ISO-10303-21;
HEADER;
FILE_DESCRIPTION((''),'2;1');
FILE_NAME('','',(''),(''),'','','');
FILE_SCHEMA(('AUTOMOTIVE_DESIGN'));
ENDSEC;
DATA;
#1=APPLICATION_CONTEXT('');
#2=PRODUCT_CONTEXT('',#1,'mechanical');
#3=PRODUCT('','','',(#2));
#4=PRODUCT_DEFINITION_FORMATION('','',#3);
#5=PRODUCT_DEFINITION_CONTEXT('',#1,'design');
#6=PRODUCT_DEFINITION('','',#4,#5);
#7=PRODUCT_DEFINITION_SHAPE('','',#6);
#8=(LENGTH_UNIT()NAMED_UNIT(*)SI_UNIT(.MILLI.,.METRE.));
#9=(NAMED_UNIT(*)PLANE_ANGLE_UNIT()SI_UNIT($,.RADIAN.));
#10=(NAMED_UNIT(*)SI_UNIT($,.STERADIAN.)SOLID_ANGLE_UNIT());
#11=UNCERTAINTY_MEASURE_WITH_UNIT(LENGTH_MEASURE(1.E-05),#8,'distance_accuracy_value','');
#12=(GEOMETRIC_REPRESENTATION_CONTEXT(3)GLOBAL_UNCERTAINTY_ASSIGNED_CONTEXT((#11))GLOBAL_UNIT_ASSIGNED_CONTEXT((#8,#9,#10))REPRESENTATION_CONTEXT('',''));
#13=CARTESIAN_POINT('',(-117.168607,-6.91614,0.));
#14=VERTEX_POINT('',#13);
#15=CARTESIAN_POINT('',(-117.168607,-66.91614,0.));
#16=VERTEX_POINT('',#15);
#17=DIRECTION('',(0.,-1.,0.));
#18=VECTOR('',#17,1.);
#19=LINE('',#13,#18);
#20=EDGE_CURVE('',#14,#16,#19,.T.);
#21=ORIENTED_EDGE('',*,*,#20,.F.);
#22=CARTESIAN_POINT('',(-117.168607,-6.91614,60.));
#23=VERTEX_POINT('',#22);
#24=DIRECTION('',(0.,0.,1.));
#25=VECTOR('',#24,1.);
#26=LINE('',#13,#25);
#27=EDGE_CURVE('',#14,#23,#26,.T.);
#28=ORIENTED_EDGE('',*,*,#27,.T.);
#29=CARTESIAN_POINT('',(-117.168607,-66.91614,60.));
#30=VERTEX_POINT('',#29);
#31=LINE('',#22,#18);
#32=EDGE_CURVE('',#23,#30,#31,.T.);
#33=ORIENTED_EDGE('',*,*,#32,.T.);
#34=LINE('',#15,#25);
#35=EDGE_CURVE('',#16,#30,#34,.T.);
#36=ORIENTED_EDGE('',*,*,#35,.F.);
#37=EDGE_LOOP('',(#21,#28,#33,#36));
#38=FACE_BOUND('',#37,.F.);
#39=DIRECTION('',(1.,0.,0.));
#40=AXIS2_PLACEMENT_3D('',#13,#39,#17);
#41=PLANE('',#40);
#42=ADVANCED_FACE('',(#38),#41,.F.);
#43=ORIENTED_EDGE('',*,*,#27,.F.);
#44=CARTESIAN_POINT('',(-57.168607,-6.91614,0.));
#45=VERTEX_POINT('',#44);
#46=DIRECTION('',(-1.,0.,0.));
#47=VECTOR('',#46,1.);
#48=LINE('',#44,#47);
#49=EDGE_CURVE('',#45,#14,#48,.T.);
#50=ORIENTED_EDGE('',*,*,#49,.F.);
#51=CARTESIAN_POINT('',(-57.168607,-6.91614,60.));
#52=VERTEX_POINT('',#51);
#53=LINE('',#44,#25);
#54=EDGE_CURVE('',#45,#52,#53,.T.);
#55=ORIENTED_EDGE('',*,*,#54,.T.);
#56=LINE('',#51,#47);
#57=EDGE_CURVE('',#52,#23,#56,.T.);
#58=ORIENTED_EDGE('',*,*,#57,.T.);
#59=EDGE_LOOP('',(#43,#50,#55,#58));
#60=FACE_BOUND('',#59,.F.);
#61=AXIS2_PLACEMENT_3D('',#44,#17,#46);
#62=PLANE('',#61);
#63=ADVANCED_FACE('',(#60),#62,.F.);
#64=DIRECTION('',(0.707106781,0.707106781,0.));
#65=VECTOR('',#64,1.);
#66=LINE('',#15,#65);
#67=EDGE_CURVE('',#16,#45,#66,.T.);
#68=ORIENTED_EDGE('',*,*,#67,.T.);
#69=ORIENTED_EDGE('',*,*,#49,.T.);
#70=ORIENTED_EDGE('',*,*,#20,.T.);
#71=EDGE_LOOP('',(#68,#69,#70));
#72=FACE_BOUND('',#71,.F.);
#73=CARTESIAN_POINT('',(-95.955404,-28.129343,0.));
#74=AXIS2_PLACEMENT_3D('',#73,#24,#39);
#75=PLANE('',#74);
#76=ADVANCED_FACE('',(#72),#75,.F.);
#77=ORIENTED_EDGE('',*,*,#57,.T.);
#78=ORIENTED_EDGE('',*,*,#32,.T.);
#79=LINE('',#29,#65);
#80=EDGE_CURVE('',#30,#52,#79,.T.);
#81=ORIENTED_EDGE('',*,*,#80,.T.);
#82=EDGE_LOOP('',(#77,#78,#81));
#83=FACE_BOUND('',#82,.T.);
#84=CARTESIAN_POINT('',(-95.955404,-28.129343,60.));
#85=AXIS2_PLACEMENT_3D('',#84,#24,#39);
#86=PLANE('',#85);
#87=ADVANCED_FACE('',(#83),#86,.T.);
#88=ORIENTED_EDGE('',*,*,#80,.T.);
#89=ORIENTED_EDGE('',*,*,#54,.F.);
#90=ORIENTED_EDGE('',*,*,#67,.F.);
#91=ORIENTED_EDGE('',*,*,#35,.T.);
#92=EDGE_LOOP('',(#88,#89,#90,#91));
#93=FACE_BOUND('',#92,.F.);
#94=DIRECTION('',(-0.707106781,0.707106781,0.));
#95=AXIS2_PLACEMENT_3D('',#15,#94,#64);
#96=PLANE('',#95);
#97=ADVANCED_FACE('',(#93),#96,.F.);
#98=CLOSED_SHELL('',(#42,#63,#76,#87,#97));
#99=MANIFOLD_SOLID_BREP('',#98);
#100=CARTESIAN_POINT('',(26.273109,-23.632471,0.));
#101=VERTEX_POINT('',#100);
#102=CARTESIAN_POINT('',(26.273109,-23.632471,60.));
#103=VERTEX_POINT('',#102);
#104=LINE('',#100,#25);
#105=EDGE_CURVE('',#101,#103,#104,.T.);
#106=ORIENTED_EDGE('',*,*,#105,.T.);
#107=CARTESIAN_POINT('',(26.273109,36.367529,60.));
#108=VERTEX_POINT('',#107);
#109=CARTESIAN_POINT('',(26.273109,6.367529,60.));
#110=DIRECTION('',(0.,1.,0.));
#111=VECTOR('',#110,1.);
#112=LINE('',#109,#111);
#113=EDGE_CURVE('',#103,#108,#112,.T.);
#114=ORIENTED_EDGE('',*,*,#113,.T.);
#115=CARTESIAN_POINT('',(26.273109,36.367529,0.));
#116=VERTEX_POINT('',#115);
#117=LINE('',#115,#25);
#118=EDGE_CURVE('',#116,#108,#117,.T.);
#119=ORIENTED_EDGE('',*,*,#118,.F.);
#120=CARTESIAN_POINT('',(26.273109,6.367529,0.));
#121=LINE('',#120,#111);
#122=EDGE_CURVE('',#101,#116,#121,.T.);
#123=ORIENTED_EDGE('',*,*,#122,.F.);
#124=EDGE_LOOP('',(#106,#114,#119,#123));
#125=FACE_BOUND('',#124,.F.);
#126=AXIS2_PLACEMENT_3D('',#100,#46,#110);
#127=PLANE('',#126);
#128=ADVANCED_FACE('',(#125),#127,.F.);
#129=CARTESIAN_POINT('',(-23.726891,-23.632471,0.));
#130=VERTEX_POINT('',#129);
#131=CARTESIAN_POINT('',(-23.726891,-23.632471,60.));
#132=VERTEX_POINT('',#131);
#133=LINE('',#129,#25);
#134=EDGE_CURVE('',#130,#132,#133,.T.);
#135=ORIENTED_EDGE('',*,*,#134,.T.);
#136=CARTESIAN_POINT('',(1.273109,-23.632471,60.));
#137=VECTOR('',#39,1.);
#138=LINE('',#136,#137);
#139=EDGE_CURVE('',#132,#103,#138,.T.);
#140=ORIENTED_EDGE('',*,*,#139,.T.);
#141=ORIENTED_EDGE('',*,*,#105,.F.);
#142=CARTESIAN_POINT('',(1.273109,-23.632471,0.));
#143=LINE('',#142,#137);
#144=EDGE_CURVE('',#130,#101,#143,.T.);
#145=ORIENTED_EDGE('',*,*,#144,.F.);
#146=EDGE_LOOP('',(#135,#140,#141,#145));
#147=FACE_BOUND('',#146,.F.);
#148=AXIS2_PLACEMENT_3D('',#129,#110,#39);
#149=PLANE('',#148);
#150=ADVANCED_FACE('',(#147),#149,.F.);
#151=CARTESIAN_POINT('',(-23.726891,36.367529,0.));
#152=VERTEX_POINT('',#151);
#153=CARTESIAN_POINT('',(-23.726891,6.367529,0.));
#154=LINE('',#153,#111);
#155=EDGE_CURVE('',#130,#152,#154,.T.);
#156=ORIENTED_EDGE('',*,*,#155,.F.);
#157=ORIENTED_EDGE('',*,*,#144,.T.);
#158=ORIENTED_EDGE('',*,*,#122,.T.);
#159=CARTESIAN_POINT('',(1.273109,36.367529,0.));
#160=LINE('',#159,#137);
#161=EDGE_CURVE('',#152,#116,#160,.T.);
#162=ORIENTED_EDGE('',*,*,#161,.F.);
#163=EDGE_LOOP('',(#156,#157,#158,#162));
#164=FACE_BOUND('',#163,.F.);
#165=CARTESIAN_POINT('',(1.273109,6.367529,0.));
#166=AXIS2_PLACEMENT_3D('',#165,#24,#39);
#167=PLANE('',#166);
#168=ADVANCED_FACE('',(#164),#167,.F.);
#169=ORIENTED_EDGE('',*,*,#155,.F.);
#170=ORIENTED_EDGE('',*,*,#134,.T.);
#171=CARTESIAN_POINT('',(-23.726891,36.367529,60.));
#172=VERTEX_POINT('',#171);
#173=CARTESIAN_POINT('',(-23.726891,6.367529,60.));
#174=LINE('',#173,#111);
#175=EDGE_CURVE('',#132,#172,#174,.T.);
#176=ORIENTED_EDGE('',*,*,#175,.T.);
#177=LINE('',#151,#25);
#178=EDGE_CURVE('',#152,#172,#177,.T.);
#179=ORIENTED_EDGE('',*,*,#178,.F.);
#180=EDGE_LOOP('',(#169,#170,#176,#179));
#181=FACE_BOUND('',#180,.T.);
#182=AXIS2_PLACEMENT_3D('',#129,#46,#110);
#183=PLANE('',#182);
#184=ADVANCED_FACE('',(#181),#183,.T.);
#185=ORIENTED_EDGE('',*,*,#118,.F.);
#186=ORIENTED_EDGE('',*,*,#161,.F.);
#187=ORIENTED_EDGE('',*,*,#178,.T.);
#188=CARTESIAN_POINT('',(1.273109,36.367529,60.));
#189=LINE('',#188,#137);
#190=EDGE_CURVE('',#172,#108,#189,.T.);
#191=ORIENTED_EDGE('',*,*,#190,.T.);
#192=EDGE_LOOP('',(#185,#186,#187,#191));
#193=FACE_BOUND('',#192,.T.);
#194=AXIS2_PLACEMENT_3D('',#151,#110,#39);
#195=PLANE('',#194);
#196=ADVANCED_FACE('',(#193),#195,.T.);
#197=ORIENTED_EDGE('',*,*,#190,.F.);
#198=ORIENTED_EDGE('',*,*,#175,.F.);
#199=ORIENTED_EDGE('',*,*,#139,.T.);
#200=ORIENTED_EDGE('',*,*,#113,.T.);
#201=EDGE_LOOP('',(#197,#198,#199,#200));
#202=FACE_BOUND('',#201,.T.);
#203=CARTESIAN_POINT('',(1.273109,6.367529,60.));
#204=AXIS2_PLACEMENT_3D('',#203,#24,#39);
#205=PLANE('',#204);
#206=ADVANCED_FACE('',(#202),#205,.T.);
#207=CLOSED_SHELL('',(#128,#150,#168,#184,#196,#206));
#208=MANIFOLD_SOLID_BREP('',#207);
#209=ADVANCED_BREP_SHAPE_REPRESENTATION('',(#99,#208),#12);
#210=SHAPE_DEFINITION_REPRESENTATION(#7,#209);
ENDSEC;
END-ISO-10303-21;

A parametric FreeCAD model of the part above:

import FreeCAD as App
import Part
import Sketcher

V = App.Vector


def add_polygon(sketch, points):
    """Adds a closed chain of lines whose ends are joined by coincident constraints."""
    first, n = sketch.GeometryCount, len(points)
    for a, b in zip(points, points[1:] + points[:1]):
        sketch.addGeometry(Part.LineSegment(App.Vector(*a, 0), App.Vector(*b, 0)), False)
    for i in range(n):
        sketch.addConstraint(Sketcher.Constraint("Coincident", first + i, 2, first + (i + 1) % n, 1))

doc = App.newDocument("Part")
body = doc.addObject("PartDesign::Body", "Body")

# Sketch on XY plane
sketch1 = body.newObject("Sketcher::SketchObject", "Sketch")
sketch1.AttachmentSupport = (doc.getObject("XY_Plane"), [""])
sketch1.MapMode = "FlatFace"
add_polygon(sketch1, [(-24, 36), (-24, -24), (26, -24), (26, 36)])  # lines 0-3
sketch1.addConstraint(Sketcher.Constraint("Vertical", 0))
sketch1.addConstraint(Sketcher.Constraint("Horizontal", 1))
sketch1.addConstraint(Sketcher.Constraint("Vertical", 2))
sketch1.addConstraint(Sketcher.Constraint("Horizontal", 3))
sketch1.addConstraint(Sketcher.Constraint("DistanceX", 1, 1, 1, 2, 50.0))
sketch1.addConstraint(Sketcher.Constraint("DistanceY", 0, 2, 0, 1, 60.0))
sketch1.addConstraint(Sketcher.Constraint("DistanceX", 0, 2, -1, 1, 23.726891))
sketch1.addConstraint(Sketcher.Constraint("DistanceY", 0, 2, -1, 1, 23.632471))
pad1 = body.newObject("PartDesign::Pad", "Pad")
pad1.Profile = sketch1
pad1.Length = 60
body2 = doc.addObject("PartDesign::Body", "Body001")

# Sketch on XY plane
sketch2 = body2.newObject("Sketcher::SketchObject", "Sketch001")
sketch2.AttachmentSupport = (doc.getObject("XY_Plane001"), [""])
sketch2.MapMode = "FlatFace"
add_polygon(sketch2, [(-57, -7), (-117, -7), (-117, -67)])  # lines 0-2
sketch2.addConstraint(Sketcher.Constraint("Horizontal", 0))
sketch2.addConstraint(Sketcher.Constraint("Vertical", 1))
sketch2.addConstraint(Sketcher.Constraint("Equal", 0, 1))
sketch2.addConstraint(Sketcher.Constraint("DistanceX", 0, 2, 0, 1, 60.0))
sketch2.addConstraint(Sketcher.Constraint("DistanceY", 0, 2, -1, 1, 6.91614))
sketch2.addConstraint(Sketcher.Constraint("DistanceX", 0, 2, -1, 1, 117.168607))
pad2 = body2.newObject("PartDesign::Pad", "Pad001")
pad2.Profile = sketch2
pad2.Length = 60

doc.recompute()
